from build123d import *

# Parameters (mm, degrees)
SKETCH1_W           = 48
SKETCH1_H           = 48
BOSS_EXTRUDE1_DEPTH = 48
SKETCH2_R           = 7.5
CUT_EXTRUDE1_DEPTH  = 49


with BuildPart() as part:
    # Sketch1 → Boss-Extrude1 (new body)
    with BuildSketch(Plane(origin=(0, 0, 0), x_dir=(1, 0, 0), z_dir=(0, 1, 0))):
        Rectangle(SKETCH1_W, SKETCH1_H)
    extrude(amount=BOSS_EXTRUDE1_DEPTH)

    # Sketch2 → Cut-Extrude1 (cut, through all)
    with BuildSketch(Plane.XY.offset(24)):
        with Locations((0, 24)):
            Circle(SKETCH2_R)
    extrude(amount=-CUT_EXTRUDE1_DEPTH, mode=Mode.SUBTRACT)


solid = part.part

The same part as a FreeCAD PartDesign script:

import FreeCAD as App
import Part
import Sketcher
Q = App.Units.Quantity

doc = App.newDocument("Part")
body = doc.addObject("PartDesign::Body", "Body")

# Sketch on XZ plane
sketch1 = body.newObject("Sketcher::SketchObject", "Sketch")
sketch1.AttachmentSupport = (doc.getObject("XZ_Plane"), [""])
sketch1.MapMode = "FlatFace"
sketch1.addGeometry(Part.LineSegment(App.Vector(-24, -24, 0), App.Vector(-24, 24, 0)), False)
sketch1.addGeometry(Part.LineSegment(App.Vector(-24, 24, 0), App.Vector(24, 24, 0)), False)
sketch1.addGeometry(Part.LineSegment(App.Vector(24, 24, 0), App.Vector(24, -24, 0)), False)
sketch1.addGeometry(Part.LineSegment(App.Vector(24, -24, 0), App.Vector(-24, -24, 0)), False)
sketch1.addConstraint(Sketcher.Constraint("Coincident", 0, 2, 1, 1))
sketch1.addConstraint(Sketcher.Constraint("Coincident", 1, 2, 2, 1))
sketch1.addConstraint(Sketcher.Constraint("Coincident", 2, 2, 3, 1))
sketch1.addConstraint(Sketcher.Constraint("Coincident", 3, 2, 0, 1))
sketch1.addConstraint(Sketcher.Constraint("Vertical", 0))
sketch1.addConstraint(Sketcher.Constraint("Horizontal", 1))
sketch1.addConstraint(Sketcher.Constraint("Vertical", 2))
sketch1.addConstraint(Sketcher.Constraint("Horizontal", 3))
sketch1.addConstraint(Sketcher.Constraint("Symmetric", 0, 2, 2, 2, -1, 1))
sketch1.addConstraint(Sketcher.Constraint("Equal", 3, 0))
sketch1.addConstraint(Sketcher.Constraint("DistanceX", 1, 1, 1, 2, Q("48 mm")))
pad1 = body.newObject("PartDesign::Pad", "Pad")
pad1.Profile = sketch1
pad1.Length = 48
pad1.Reversed = True

# Sketch on XY plane
sketch2 = body.newObject("Sketcher::SketchObject", "Sketch001")
sketch2.AttachmentSupport = (doc.getObject("XY_Plane"), [""])
sketch2.MapMode = "FlatFace"
sketch2.AttachmentOffset = App.Placement(App.Vector(0, 0, 24), App.Rotation())
sketch2.addGeometry(Part.Circle(App.Vector(0, 24, 0), App.Vector(0, 0, 1), 7.5), False)
sketch2.addConstraint(Sketcher.Constraint("PointOnObject", 0, 3, -2))
sketch2.addConstraint(Sketcher.Constraint("Diameter", 0, Q("15 mm")))
sketch2.addConstraint(Sketcher.Constraint("DistanceY", -1, 1, 0, 3, Q("24 mm")))
pocket1 = body.newObject("PartDesign::Pocket", "Pocket")
pocket1.Profile = sketch2
pocket1.Type = "ThroughAll"

doc.recompute()
